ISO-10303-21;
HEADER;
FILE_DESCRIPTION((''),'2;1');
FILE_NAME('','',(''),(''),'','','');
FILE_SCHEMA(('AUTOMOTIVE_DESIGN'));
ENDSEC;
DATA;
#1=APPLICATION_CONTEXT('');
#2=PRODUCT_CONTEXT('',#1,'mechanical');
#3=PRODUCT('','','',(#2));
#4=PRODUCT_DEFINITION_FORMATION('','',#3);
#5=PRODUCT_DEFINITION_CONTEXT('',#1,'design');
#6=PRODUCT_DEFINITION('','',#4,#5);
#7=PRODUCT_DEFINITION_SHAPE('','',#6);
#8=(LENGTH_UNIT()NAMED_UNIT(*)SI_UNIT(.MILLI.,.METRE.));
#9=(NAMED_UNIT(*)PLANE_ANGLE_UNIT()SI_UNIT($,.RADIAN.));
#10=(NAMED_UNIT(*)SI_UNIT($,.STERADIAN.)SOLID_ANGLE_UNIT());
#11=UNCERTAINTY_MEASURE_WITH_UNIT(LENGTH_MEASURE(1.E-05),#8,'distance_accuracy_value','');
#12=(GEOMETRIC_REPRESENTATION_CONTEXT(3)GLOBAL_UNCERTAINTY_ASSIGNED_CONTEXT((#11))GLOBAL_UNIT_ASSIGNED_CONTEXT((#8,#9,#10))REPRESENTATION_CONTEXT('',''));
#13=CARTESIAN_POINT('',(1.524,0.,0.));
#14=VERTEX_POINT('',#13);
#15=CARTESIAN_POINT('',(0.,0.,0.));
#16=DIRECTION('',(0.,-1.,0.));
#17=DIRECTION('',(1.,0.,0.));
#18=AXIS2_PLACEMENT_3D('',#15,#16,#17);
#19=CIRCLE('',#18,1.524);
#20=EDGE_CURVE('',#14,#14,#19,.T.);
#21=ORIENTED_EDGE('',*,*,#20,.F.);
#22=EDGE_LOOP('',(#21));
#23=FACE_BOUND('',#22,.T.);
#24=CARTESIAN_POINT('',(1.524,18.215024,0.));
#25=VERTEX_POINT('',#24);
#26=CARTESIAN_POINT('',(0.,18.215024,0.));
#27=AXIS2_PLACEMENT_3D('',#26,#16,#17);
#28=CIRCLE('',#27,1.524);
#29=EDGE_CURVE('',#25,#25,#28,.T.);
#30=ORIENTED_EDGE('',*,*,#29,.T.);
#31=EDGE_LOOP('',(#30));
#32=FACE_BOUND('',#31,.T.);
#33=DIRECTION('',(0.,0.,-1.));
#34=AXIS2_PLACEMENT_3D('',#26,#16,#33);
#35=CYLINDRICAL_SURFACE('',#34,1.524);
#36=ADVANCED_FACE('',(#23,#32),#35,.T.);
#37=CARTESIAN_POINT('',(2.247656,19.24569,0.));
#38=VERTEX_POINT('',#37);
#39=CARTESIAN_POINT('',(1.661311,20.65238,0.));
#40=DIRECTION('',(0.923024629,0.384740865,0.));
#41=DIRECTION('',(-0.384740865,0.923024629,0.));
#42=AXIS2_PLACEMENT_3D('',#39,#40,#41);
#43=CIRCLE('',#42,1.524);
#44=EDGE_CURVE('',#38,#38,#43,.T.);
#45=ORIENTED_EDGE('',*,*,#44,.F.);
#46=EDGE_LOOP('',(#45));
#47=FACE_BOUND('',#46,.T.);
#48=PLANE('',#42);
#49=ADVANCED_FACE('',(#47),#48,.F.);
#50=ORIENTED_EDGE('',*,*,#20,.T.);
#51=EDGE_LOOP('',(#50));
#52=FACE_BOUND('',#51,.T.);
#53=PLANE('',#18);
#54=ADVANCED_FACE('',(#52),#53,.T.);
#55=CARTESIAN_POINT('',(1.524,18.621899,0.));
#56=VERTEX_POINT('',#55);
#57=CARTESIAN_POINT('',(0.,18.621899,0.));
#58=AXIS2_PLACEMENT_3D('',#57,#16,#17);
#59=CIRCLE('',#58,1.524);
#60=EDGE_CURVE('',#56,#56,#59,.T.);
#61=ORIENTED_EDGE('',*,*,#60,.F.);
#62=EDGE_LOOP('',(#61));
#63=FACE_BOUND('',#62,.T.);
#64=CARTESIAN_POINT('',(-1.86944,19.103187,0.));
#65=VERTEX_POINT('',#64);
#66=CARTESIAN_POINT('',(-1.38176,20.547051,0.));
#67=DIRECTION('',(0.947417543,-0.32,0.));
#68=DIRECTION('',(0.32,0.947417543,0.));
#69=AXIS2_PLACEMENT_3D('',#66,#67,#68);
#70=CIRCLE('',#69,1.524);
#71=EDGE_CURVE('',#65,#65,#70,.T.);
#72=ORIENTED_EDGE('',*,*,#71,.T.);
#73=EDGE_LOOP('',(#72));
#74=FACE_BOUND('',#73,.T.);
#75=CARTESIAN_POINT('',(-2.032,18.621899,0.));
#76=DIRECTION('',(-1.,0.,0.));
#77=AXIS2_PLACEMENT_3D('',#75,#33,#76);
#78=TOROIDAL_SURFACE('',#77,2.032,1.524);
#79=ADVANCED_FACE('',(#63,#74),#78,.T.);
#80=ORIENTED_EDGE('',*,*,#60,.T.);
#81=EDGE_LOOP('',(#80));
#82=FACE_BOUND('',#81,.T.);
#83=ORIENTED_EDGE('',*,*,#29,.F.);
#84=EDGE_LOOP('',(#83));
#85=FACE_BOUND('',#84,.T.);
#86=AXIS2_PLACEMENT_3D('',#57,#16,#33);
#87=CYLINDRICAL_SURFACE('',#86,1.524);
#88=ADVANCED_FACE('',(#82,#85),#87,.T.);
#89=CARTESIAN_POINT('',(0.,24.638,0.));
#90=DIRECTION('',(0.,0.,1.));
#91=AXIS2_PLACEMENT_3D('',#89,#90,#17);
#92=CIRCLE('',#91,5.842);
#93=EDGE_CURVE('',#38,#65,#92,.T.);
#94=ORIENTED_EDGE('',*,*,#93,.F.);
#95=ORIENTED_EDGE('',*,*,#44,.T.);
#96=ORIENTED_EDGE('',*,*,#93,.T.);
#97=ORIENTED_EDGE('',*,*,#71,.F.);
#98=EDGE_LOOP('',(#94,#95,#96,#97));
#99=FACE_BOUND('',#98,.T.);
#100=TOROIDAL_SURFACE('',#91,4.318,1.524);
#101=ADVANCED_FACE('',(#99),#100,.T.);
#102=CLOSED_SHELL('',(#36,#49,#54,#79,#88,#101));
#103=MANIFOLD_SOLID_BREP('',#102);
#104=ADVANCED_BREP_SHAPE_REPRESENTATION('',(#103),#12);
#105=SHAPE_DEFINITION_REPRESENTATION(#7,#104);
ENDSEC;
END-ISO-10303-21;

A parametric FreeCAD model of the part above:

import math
import FreeCAD as App
import Part
import Sketcher
Q = App.Units.Quantity

doc = App.newDocument("Part")
params = doc.addObject("Spreadsheet::Sheet", "Params")
for row, (alias, value) in enumerate([
    ("sketch1_diameter", "0.12 in"),
    ("sketch2_radius", "0.08 in"),
    ("sketch2_radius2", "0.17 in"),
], start=1):
    params.set(f"A{row}", alias)
    params.set(f"B{row}", "=" + value)
    params.setAlias(f"B{row}", alias)

body = doc.addObject("PartDesign::Body", "Body")

# Sketch on XZ plane
sketch1 = doc.addObject("Sketcher::SketchObject", "Sketch")
body.addObject(sketch1)
sketch1.AttachmentSupport = (doc.XZ_Plane, [""])
sketch1.MapMode = "FlatFace"
sketch1.addGeometry(Part.Circle(App.Vector(0, 0, 0), App.Vector(0, 0, 1), 1.5), False)
sketch1.addConstraint(Sketcher.Constraint("Coincident", 0, 3, -1, 1))
sketch1.addConstraint(Sketcher.Constraint("Diameter", 0, Q("0.12 in")))
sketch1.setExpression("Constraints[1]", "Params.sketch1_diameter")

# Sketch on XY plane
sketch2 = doc.addObject("Sketcher::SketchObject", "Sketch001")
body.addObject(sketch2)
sketch2.AttachmentSupport = (doc.XY_Plane, [""])
sketch2.MapMode = "FlatFace"
sketch2.addGeometry(Part.LineSegment(App.Vector(0, 0, 0), App.Vector(0, 18.6, 0)), False)
sketch2.addGeometry(Part.ArcOfCircle(Part.Circle(App.Vector(-2, 18.6, 0), App.Vector(0, 0, 1), 2), math.radians(0), math.radians(71)), False)
sketch2.addGeometry(Part.ArcOfCircle(Part.Circle(App.Vector(0, 24.6, 0), App.Vector(0, 0, 1), 4.3), math.radians(-67), math.radians(251)), False)
sketch2.addConstraint(Sketcher.Constraint("Tangent", 0, 2, 1, 1))
sketch2.addConstraint(Sketcher.Constraint("Tangent", 1, 2, 2, 2))
sketch2.addConstraint(Sketcher.Constraint("Vertical", 0))
sketch2.addConstraint(Sketcher.Constraint("Coincident", 0, 1, -1, 1))
sketch2.addConstraint(Sketcher.Constraint("PointOnObject", 2, 3, -2))
sketch2.addConstraint(Sketcher.Constraint("Radius", 1, Q("0.08 in")))
sketch2.addConstraint(Sketcher.Constraint("Radius", 2, Q("0.17 in")))
sketch2.addConstraint(Sketcher.Constraint("DistanceY", -1, 1, 2, 3, Q("0.97 in")))
sketch2.addConstraint(Sketcher.Constraint("DistanceX", -1, 1, 2, 1, Q("1.661311 mm")))
sketch2.setExpression("Constraints[5]", "Params.sketch2_radius")
sketch2.setExpression("Constraints[6]", "Params.sketch2_radius2")
doc.recompute()

additivepipe = doc.addObject("PartDesign::AdditivePipe", "AdditivePipe")
body.addObject(additivepipe)
additivepipe.Profile = sketch1
additivepipe.Spine = (sketch2, ["Edge1", "Edge2", "Edge3"])

doc.recompute()
